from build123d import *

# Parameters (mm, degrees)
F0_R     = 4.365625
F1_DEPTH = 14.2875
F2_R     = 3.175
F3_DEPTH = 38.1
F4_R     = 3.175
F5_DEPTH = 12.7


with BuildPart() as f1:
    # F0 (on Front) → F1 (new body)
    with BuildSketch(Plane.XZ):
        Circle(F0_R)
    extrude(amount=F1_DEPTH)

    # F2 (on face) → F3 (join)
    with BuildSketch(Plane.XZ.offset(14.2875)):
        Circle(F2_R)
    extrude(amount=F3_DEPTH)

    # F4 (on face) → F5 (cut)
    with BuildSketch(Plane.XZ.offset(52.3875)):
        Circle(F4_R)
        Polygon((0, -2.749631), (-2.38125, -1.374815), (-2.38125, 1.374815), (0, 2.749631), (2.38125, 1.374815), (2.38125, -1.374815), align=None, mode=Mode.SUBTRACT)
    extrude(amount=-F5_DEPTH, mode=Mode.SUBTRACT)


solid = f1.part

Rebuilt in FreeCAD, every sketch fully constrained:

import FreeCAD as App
import Part
import Sketcher
Q = App.Units.Quantity

doc = App.newDocument("Part")
body = doc.addObject("PartDesign::Body", "Body")

# Sketch on XZ plane
sketch1 = body.newObject("Sketcher::SketchObject", "Sketch")
sketch1.AttachmentSupport = (doc.getObject("XZ_Plane"), [""])
sketch1.MapMode = "FlatFace"
sketch1.addGeometry(Part.Circle(App.Vector(0, 0, 0), App.Vector(0, 0, 1), 4.365625), False)
sketch1.addConstraint([
    Sketcher.Constraint("Coincident", 0, 3, -1, 1),
    Sketcher.Constraint("Diameter", 0, Q("0.34375 in")),
])
pad1 = body.newObject("PartDesign::Pad", "Pad")
pad1.Profile = sketch1
pad1.Length = Q("0.5625 in")

# Sketch on XZ plane
sketch2 = body.newObject("Sketcher::SketchObject", "Sketch001")
sketch2.AttachmentSupport = (doc.getObject("XZ_Plane"), [""])
sketch2.MapMode = "FlatFace"
sketch2.AttachmentOffset = App.Placement(App.Vector(0, 0, 0.5625 * 25.4), App.Rotation())
sketch2.addGeometry(Part.Circle(App.Vector(0, 0, 0), App.Vector(0, 0, 1), 3.175), False)
sketch2.addConstraint([
    Sketcher.Constraint("Coincident", 0, 3, -1, 1),
    Sketcher.Constraint("Diameter", 0, Q("0.25 in")),
])
pad2 = body.newObject("PartDesign::Pad", "Pad001")
pad2.Profile = sketch2
pad2.Length = Q("1.5 in")

# Sketch on XZ plane
sketch3 = body.newObject("Sketcher::SketchObject", "Sketch002")
sketch3.AttachmentSupport = (doc.getObject("XZ_Plane"), [""])
sketch3.MapMode = "FlatFace"
sketch3.AttachmentOffset = App.Placement(App.Vector(0, 0, 2.0625 * 25.4), App.Rotation())
sketch3.addGeometry([
    Part.Circle(App.Vector(0, 0, 0), App.Vector(0, 0, 1), 3.175),  # 0
    Part.LineSegment(App.Vector(2.38125, -1.374815, 0), App.Vector(0, -2.749631, 0)),  # 1
    Part.LineSegment(App.Vector(0, -2.749631, 0), App.Vector(-2.38125, -1.374815, 0)),  # 2
    Part.LineSegment(App.Vector(-2.38125, -1.374815, 0), App.Vector(-2.38125, 1.374815, 0)),  # 3
    Part.LineSegment(App.Vector(-2.38125, 1.374815, 0), App.Vector(0, 2.749631, 0)),  # 4
    Part.LineSegment(App.Vector(0, 2.749631, 0), App.Vector(2.38125, 1.374815, 0)),  # 5
    Part.LineSegment(App.Vector(2.38125, 1.374815, 0), App.Vector(2.38125, -1.374815, 0)),  # 6
], False)
sketch3.addConstraint([
    Sketcher.Constraint("Coincident", 1, 2, 2, 1),
    Sketcher.Constraint("Coincident", 2, 2, 3, 1),
    Sketcher.Constraint("Coincident", 3, 2, 4, 1),
    Sketcher.Constraint("Coincident", 4, 2, 5, 1),
    Sketcher.Constraint("Coincident", 5, 2, 6, 1),
    Sketcher.Constraint("Coincident", 6, 2, 1, 1),
    Sketcher.Constraint("Vertical", 3),
    Sketcher.Constraint("Vertical", 6),
    Sketcher.Constraint("Coincident", 0, 3, -1, 1),
    Sketcher.Constraint("Symmetric", 1, 2, 4, 2, -1, 1),
    Sketcher.Constraint("Symmetric", 2, 2, 5, 2, -1, 1),
    Sketcher.Constraint("PointOnObject", 1, 2, -2),
    Sketcher.Constraint("Parallel", 1, 4),
    Sketcher.Constraint("Horizontal", 3, 2, 5, 2),
    Sketcher.Constraint("Diameter", 0, Q("0.25 in")),
    Sketcher.Constraint("Angle", 1, Q("-149.999988 deg")),
    Sketcher.Constraint("DistanceX", 2, 2, -1, 1, Q("0.09375 in")),
    Sketcher.Constraint("DistanceY", 3, 1, 3, 2, 2.74963),
])
pocket1 = body.newObject("PartDesign::Pocket", "Pocket")
pocket1.Profile = sketch3
pocket1.Length = Q("0.5 in")

doc.recompute()
